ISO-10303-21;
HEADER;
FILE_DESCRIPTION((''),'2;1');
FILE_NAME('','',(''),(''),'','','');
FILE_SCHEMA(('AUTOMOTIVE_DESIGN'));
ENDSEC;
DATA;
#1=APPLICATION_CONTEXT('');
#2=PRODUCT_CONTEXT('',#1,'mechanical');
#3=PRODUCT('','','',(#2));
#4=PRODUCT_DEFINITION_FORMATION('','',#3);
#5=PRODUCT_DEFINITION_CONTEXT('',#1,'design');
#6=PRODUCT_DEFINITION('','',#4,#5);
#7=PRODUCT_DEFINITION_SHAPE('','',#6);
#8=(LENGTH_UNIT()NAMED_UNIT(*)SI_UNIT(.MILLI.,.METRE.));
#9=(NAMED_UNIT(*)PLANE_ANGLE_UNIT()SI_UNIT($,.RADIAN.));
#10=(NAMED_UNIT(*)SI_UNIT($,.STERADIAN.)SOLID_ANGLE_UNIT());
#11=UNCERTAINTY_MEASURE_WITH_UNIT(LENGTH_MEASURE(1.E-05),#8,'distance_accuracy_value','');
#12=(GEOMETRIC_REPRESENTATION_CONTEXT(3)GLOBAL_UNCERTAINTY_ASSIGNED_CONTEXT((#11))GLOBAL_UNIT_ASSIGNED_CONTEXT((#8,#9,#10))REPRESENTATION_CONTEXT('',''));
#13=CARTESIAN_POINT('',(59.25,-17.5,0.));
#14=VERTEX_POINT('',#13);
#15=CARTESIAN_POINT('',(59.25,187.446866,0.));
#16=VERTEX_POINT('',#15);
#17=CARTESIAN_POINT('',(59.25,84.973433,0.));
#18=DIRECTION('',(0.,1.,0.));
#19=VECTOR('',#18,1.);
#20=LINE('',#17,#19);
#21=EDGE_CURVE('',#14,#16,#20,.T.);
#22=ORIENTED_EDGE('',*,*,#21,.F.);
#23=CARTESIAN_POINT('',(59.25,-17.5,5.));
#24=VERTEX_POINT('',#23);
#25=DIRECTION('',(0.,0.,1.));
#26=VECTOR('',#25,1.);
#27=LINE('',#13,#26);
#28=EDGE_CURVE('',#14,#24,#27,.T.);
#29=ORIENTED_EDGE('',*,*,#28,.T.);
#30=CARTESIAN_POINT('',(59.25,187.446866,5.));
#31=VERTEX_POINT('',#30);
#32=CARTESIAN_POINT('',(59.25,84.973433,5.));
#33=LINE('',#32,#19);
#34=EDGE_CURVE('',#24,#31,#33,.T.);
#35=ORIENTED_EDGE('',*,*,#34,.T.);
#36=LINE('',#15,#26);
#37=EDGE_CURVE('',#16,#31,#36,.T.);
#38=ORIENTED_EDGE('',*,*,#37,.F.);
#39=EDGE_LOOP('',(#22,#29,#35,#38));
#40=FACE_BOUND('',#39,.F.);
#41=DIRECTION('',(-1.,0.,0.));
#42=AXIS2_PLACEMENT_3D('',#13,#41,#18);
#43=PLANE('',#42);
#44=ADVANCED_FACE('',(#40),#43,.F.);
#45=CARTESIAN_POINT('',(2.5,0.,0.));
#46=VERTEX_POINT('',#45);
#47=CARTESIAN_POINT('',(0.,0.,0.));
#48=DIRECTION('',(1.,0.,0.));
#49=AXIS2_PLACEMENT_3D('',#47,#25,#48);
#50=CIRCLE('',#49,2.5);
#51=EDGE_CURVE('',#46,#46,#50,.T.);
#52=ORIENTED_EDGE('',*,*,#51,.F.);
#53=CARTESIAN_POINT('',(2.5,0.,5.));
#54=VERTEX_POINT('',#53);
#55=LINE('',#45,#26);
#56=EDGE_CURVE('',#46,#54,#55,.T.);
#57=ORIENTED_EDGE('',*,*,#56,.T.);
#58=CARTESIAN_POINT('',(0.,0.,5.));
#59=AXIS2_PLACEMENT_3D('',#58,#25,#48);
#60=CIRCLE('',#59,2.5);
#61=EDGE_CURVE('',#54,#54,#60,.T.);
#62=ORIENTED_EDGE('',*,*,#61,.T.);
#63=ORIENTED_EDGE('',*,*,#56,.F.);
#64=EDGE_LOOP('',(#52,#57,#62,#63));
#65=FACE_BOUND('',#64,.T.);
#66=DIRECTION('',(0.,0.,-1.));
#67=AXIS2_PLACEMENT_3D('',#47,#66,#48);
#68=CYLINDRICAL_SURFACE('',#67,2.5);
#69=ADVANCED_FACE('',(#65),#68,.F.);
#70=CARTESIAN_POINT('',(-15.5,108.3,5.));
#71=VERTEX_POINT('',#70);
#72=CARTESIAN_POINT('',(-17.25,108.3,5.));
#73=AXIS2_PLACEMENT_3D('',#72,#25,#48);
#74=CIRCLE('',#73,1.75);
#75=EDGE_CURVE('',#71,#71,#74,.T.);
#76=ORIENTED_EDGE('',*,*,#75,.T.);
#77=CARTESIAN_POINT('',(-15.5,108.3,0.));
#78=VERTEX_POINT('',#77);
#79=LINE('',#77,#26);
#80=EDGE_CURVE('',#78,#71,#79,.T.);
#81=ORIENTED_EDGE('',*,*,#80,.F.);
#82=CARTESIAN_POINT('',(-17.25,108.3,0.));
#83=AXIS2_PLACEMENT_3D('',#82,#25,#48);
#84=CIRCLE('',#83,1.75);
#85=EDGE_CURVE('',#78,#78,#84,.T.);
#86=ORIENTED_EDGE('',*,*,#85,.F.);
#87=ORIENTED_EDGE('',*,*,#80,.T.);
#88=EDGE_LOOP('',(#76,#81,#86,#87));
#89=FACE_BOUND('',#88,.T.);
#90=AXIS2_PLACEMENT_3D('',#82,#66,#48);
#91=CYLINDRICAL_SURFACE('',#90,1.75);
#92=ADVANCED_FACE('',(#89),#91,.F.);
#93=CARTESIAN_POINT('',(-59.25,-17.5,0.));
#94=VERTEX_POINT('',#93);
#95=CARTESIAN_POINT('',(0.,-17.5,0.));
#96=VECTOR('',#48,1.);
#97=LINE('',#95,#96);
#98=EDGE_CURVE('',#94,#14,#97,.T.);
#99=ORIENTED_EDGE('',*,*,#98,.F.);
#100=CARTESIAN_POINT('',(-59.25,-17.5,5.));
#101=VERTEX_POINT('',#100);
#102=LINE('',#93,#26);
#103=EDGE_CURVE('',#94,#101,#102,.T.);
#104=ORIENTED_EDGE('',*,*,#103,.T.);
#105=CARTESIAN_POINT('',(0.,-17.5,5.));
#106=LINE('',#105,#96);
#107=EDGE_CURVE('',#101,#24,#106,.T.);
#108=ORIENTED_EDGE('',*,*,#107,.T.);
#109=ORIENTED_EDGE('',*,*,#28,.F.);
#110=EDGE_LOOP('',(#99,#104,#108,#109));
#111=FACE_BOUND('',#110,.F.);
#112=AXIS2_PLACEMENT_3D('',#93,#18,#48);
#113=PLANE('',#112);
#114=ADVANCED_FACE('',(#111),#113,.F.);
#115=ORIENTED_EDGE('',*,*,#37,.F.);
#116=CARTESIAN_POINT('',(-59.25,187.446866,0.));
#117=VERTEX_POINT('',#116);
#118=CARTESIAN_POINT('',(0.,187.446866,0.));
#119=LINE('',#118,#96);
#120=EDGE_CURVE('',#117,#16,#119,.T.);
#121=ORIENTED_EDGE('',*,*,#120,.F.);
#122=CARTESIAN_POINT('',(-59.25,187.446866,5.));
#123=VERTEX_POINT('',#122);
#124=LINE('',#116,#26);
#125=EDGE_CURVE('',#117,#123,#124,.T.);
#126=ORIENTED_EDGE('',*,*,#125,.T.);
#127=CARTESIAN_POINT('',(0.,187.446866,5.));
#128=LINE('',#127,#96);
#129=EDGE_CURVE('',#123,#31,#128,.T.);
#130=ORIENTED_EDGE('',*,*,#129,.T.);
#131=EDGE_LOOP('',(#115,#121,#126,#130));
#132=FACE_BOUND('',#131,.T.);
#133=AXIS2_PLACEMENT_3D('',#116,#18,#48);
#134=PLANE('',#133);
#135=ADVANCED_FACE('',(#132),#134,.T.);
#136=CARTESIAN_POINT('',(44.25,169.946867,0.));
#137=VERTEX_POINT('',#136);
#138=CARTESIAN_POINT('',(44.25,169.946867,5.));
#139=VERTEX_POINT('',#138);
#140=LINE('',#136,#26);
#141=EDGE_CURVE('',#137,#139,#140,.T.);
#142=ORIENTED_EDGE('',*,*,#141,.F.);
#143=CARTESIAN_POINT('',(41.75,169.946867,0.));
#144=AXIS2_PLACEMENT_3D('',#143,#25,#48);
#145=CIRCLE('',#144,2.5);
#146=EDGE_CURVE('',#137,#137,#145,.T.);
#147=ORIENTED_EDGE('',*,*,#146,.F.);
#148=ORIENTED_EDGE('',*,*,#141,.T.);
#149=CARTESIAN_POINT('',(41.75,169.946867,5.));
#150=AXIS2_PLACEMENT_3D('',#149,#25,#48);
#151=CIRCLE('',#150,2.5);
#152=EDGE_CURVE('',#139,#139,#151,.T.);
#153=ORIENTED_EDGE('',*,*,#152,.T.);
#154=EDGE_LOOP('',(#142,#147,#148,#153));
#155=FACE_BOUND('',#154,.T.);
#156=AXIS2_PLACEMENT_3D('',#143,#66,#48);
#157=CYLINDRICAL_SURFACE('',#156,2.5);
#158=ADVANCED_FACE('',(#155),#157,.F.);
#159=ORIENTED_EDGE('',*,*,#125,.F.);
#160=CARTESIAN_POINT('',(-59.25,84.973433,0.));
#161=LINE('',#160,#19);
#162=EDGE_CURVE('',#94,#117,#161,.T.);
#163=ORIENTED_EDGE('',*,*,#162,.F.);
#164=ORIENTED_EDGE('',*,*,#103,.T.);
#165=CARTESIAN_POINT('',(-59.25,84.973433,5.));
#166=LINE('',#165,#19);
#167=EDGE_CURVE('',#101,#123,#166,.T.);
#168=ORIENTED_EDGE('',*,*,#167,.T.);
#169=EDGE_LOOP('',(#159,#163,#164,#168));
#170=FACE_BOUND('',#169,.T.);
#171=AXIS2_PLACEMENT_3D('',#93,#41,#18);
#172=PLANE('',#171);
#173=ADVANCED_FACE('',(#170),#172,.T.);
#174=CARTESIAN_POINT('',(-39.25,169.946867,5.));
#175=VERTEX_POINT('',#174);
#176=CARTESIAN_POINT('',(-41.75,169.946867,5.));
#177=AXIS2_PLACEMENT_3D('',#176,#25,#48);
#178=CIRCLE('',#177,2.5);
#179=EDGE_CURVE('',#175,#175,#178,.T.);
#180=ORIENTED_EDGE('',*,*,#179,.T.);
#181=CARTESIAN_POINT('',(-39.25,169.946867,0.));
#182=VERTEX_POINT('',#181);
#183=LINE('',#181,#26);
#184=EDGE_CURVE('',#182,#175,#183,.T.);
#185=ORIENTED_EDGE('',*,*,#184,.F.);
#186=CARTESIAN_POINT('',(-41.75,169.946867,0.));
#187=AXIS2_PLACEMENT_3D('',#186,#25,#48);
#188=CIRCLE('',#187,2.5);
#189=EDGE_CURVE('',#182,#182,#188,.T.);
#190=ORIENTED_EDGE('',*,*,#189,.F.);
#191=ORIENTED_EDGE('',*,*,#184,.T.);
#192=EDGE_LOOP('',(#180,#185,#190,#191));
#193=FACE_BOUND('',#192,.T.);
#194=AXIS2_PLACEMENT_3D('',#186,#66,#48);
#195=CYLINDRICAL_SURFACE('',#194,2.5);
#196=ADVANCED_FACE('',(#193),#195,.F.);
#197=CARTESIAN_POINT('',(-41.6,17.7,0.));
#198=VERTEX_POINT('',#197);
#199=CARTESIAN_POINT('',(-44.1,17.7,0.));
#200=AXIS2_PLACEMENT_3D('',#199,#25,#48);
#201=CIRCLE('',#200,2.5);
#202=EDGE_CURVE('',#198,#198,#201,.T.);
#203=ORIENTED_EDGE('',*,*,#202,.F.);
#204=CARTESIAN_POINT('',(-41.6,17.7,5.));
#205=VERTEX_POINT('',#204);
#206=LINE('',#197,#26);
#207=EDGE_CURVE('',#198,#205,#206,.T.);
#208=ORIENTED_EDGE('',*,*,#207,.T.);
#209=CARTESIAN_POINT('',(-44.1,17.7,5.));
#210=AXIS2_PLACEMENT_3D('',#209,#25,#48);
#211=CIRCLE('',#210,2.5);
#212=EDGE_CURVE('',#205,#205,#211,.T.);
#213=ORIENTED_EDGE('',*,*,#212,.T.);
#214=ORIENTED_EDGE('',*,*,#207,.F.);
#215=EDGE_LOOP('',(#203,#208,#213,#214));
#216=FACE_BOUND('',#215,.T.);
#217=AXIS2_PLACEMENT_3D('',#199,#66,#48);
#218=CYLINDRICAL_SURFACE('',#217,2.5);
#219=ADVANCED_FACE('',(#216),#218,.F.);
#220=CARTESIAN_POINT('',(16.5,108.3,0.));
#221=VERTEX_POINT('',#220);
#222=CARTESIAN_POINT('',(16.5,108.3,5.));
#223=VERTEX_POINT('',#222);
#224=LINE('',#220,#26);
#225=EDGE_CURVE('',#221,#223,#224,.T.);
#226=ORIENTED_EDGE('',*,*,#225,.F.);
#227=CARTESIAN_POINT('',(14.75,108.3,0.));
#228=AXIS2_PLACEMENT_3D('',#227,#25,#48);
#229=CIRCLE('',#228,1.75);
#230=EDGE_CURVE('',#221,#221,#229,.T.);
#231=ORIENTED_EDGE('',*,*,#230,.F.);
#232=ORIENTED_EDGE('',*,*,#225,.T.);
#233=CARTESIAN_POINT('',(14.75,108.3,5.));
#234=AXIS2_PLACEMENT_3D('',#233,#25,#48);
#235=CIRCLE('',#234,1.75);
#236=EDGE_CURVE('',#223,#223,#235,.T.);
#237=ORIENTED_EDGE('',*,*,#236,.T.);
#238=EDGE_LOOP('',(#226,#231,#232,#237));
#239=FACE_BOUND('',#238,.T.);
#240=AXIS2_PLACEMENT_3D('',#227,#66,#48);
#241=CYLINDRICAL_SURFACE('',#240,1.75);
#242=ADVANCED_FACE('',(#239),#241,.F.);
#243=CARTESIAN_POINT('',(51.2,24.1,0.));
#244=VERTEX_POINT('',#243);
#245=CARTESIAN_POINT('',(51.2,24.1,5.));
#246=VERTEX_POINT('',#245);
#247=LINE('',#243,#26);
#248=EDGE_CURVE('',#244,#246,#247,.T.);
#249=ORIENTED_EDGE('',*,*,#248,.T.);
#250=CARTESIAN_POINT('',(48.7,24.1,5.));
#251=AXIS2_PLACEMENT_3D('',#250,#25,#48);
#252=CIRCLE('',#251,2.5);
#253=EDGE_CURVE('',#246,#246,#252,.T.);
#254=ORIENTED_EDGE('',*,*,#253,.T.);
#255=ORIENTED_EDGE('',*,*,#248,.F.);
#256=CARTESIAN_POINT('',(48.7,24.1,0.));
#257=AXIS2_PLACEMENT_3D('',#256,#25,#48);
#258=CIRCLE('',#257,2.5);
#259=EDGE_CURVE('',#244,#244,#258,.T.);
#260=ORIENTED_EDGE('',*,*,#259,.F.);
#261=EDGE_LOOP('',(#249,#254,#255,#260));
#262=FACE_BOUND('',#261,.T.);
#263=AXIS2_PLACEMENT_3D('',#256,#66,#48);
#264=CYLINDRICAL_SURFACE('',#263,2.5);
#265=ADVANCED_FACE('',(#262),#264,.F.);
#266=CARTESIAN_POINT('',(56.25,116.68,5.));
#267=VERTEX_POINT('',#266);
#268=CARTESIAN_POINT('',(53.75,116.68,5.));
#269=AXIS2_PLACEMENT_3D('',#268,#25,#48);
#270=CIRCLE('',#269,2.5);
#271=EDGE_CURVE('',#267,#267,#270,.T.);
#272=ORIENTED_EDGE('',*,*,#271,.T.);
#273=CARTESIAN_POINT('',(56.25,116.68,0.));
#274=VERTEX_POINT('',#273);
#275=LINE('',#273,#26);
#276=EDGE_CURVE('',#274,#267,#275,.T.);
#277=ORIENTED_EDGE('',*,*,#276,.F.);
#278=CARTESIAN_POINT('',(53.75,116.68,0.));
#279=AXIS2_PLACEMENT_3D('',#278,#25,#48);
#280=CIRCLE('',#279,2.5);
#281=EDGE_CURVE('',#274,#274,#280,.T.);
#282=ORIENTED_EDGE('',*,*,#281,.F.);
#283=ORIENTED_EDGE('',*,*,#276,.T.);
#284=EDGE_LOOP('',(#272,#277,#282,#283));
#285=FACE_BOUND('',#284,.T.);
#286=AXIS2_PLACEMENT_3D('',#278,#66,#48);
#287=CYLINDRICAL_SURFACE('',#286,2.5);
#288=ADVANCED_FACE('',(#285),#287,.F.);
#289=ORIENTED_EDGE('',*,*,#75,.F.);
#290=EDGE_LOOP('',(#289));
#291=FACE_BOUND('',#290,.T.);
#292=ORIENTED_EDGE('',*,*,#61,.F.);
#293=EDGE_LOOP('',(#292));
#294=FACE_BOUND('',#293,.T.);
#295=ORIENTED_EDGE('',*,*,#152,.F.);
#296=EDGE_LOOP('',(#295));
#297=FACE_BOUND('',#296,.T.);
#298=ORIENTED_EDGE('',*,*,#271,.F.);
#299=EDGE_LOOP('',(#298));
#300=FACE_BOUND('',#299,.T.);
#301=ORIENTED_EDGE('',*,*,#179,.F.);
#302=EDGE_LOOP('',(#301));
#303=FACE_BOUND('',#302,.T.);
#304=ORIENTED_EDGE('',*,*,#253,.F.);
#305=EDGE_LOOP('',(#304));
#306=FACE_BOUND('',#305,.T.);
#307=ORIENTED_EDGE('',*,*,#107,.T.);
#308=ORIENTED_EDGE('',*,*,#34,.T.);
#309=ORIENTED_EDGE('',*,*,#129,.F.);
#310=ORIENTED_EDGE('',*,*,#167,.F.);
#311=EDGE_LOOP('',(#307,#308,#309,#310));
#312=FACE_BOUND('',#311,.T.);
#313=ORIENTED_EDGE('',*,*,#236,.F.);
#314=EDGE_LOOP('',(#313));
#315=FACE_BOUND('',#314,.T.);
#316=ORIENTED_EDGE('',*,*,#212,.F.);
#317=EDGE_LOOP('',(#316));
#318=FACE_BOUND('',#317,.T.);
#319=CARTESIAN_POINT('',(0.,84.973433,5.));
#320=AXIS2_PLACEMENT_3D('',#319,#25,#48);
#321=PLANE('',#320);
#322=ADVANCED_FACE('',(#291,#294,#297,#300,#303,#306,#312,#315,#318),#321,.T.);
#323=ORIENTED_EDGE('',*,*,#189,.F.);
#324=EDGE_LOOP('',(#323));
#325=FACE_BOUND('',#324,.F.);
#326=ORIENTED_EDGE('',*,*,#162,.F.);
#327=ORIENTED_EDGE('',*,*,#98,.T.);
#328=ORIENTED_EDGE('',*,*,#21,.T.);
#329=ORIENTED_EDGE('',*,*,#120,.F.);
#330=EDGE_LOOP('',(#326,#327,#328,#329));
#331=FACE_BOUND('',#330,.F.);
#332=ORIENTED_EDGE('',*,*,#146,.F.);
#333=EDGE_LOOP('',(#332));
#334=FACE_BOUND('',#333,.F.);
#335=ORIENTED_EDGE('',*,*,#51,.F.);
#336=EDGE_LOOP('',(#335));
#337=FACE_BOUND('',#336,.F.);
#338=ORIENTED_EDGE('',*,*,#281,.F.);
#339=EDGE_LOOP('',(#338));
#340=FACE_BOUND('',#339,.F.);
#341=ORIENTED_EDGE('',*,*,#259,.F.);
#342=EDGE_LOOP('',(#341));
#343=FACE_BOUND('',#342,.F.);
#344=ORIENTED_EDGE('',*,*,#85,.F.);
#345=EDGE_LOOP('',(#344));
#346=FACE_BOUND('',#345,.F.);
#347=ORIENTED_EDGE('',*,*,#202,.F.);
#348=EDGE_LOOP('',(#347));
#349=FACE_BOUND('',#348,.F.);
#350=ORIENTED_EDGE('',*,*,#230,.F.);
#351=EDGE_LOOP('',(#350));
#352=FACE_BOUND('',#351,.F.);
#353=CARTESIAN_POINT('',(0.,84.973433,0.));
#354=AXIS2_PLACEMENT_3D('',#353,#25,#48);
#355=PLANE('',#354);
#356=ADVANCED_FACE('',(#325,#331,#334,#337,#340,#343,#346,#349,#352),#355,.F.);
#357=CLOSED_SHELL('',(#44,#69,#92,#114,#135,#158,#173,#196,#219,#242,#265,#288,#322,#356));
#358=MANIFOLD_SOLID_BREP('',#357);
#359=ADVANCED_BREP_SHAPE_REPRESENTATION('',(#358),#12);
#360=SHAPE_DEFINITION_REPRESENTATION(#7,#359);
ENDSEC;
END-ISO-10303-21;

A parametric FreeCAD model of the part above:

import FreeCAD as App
import Part
import Sketcher
from FreeCAD import Vector

doc = App.newDocument("Part")
body = doc.addObject("PartDesign::Body", "Body")

# Sketch on XY plane
sketch1 = body.newObject("Sketcher::SketchObject", "Sketch")
sketch1.AttachmentSupport = (doc.getObject("XY_Plane"), [""])
sketch1.MapMode = "FlatFace"
sketch1.addGeometry([
    Part.LineSegment(Vector(-59.2, 187.4, 0), Vector(-59.2, -17.5, 0)),  # 0
    Part.LineSegment(Vector(-59.2, -17.5, 0), Vector(59.2, -17.5, 0)),  # 1
    Part.LineSegment(Vector(59.2, -17.5, 0), Vector(59.2, 187.4, 0)),  # 2
    Part.LineSegment(Vector(59.2, 187.4, 0), Vector(-59.2, 187.4, 0)),  # 3
    Part.Circle(Vector(-44.1, 17.7, 0), Vector(0, 0, 1), 2.5),  # 4
    Part.Circle(Vector(0, 0, 0), Vector(0, 0, 1), 2.5),  # 5
    Part.Circle(Vector(48.7, 24.1, 0), Vector(0, 0, 1), 2.5),  # 6
    Part.Circle(Vector(-17.2, 108.3, 0), Vector(0, 0, 1), 1.8),  # 7
    Part.Circle(Vector(-41.8, 169.9, 0), Vector(0, 0, 1), 2.5),  # 8
    Part.Circle(Vector(14.8, 108.3, 0), Vector(0, 0, 1), 1.8),  # 9
    Part.Circle(Vector(53.8, 116.7, 0), Vector(0, 0, 1), 2.5),  # 10
    Part.Circle(Vector(41.8, 169.9, 0), Vector(0, 0, 1), 2.5),  # 11
], False)
sketch1.addConstraint([
    Sketcher.Constraint("Coincident", 0, 2, 1, 1),
    Sketcher.Constraint("Coincident", 1, 2, 2, 1),
    Sketcher.Constraint("Coincident", 2, 2, 3, 1),
    Sketcher.Constraint("Coincident", 3, 2, 0, 1),
    Sketcher.Constraint("Vertical", 0),
    Sketcher.Constraint("Horizontal", 1),
    Sketcher.Constraint("Vertical", 2),
    Sketcher.Constraint("Horizontal", 3),
    Sketcher.Constraint("Coincident", 5, 3, -1, 1),
    Sketcher.Constraint("Equal", 4, 5),
    Sketcher.Constraint("Equal", 5, 6),
    Sketcher.Constraint("Equal", 6, 8),
    Sketcher.Constraint("Equal", 7, 9),
    Sketcher.Constraint("Equal", 8, 10),
    Sketcher.Constraint("Equal", 10, 11),
    Sketcher.Constraint("Symmetric", 8, 3, 11, 3, -2),
    Sketcher.Constraint("Horizontal", 7, 3, 9, 3),
    Sketcher.Constraint("Diameter", 4, 5.0),
    Sketcher.Constraint("Diameter", 7, 3.5),
    Sketcher.Constraint("DistanceX", 1, 1, 1, 2, 118.5),
    Sketcher.Constraint("DistanceX", 7, 3, 9, 3, 32.0),
    Sketcher.Constraint("DistanceX", 9, 3, 10, 3, 39.0),
    Sketcher.Constraint("DistanceX", 11, 3, 10, 3, 12.0),
    Sketcher.Constraint("DistanceX", 0, 2, 7, 3, 42.0),
    Sketcher.Constraint("DistanceX", 8, 3, 2, 2, 101.0),
    Sketcher.Constraint("DistanceX", 4, 3, -1, 1, 44.1),
    Sketcher.Constraint("DistanceY", -1, 1, 4, 3, 17.7),
    Sketcher.Constraint("DistanceX", -1, 1, 6, 3, 48.7),
    Sketcher.Constraint("DistanceY", -1, 1, 6, 3, 24.1),
    Sketcher.Constraint("DistanceY", -1, 1, 7, 3, 108.3),
    Sketcher.Constraint("DistanceY", 0, 2, -1, 1, 17.5),
    Sketcher.Constraint("DistanceY", 11, 3, 2, 2, 17.5),
    Sketcher.Constraint("DistanceY", -1, 1, 10, 3, 116.68),
    Sketcher.Constraint("DistanceY", 0, 2, 0, 1, 204.946867),
])
pad1 = body.newObject("PartDesign::Pad", "Pad")
pad1.Profile = sketch1
pad1.Length = 5

doc.recompute()
